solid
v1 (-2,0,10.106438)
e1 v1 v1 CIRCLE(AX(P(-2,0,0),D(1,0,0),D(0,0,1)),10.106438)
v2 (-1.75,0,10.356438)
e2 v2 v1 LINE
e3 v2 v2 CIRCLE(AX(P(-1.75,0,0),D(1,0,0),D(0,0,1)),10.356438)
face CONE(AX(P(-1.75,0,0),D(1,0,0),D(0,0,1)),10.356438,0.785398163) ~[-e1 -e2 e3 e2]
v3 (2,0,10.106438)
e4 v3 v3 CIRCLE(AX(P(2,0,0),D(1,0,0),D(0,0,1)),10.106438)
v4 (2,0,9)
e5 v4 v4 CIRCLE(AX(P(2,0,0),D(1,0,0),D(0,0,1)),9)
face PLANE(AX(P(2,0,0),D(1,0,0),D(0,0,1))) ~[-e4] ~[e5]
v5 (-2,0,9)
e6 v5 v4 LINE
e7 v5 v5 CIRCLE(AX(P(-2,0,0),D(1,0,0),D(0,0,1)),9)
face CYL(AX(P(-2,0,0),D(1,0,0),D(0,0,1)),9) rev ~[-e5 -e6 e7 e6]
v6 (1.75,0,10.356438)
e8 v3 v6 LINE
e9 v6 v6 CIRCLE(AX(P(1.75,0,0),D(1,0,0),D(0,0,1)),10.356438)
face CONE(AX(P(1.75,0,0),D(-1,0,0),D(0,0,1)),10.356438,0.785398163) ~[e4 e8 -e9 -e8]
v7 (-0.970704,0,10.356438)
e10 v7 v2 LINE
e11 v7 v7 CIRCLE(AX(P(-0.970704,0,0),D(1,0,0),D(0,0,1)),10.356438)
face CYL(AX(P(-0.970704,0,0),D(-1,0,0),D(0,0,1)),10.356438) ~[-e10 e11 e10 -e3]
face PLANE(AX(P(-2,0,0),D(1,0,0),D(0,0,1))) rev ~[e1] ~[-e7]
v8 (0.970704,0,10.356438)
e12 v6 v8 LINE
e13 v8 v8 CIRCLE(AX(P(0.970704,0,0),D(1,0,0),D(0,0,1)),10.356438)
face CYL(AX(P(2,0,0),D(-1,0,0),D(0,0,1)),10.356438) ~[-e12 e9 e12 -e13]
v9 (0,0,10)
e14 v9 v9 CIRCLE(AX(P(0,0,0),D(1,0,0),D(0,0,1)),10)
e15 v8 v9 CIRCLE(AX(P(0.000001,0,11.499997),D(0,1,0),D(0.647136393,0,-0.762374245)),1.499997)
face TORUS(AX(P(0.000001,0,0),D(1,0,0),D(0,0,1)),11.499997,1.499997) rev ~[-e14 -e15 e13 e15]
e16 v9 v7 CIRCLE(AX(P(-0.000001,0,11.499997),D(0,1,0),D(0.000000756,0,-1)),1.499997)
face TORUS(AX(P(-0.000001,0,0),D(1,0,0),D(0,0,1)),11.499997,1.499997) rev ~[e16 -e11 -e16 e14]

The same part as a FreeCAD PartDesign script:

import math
import FreeCAD as App
import Part
import Sketcher

V = App.Vector
Q = App.Units.Quantity


def edges_at(feature, points):
    """Names of the edges that pass closest to the given points."""
    edges = feature.Shape.Edges
    near = lambda p: min(range(len(edges)), key=lambda i: edges[i].distToShape(Part.Vertex(*p))[0])
    return sorted({f"Edge{near(p) + 1}" for p in points})

doc = App.newDocument("Part")
body = doc.addObject("PartDesign::Body", "Body")

sketch1 = body.newObject("Sketcher::SketchObject", "Sketch")
sketch1.AttachmentSupport = (doc.getObject("XZ_Plane"), [""])
sketch1.MapMode = "FlatFace"
sketch1.addGeometry(Part.ArcOfCircle(Part.Circle(V(0, 11.5, 0), V(0, 0, 1), 1.5), math.radians(-90), math.radians(-50)), False)
sketch1.addGeometry(Part.ArcOfCircle(Part.Circle(V(0, 11.5, 0), V(0, 0, 1), 1.5), math.radians(-130), math.radians(-90)), False)
sketch1.addGeometry(Part.LineSegment(V(-1, 10.4, 0), V(-2, 10.4, 0)), False)
sketch1.addGeometry(Part.LineSegment(V(-2, 10.4, 0), V(-2, 9, 0)), False)
sketch1.addGeometry(Part.LineSegment(V(-2, 9, 0), V(2, 9, 0)), False)
sketch1.addGeometry(Part.LineSegment(V(2, 9, 0), V(2, 10.4, 0)), False)
sketch1.addGeometry(Part.LineSegment(V(2, 10.4, 0), V(1, 10.4, 0)), False)
sketch1.addConstraint(Sketcher.Constraint("Tangent", 0, 1, 1, 2))
sketch1.addConstraint(Sketcher.Constraint("Coincident", 1, 1, 2, 1))
sketch1.addConstraint(Sketcher.Constraint("Coincident", 2, 2, 3, 1))
sketch1.addConstraint(Sketcher.Constraint("Coincident", 3, 2, 4, 1))
sketch1.addConstraint(Sketcher.Constraint("Coincident", 4, 2, 5, 1))
sketch1.addConstraint(Sketcher.Constraint("Coincident", 5, 2, 6, 1))
sketch1.addConstraint(Sketcher.Constraint("Coincident", 6, 2, 0, 2))
sketch1.addConstraint(Sketcher.Constraint("Horizontal", 2))
sketch1.addConstraint(Sketcher.Constraint("Vertical", 3))
sketch1.addConstraint(Sketcher.Constraint("Horizontal", 4))
sketch1.addConstraint(Sketcher.Constraint("Vertical", 5))
sketch1.addConstraint(Sketcher.Constraint("Horizontal", 6))
sketch1.addConstraint(Sketcher.Constraint("Equal", 0, 1))
sketch1.addConstraint(Sketcher.Constraint("Symmetric", 2, 2, 5, 2, -2))
sketch1.addConstraint(Sketcher.Constraint("PointOnObject", 0, 3, -2))
sketch1.addConstraint(Sketcher.Constraint("PointOnObject", 0, 1, -2))
sketch1.addConstraint(Sketcher.Constraint("DistanceX", 4, 1, 4, 2, Q("4 mm")))
sketch1.addConstraint(Sketcher.Constraint("DistanceY", -1, 1, 0, 1, Q("10 mm")))
sketch1.addConstraint(Sketcher.Constraint("DistanceY", -1, 1, 3, 2, Q("9 mm")))
sketch1.addConstraint(Sketcher.Constraint("Radius", 0, Q("1.499997 mm")))
sketch1.addConstraint(Sketcher.Constraint("DistanceY", 3, 2, 3, 1, Q("1.356438 mm")))
revolution = body.newObject("PartDesign::Revolution", "Revolution")
revolution.Profile = sketch1
revolution.ReferenceAxis = (sketch1, ["H_Axis"])
revolution.Angle = 360
doc.recompute()

chamfer = body.newObject("PartDesign::Chamfer", "Chamfer")
chamfer.Base = (revolution, edges_at(revolution, [(2, 0, -10.356), (-2, 0, -10.356)]))
chamfer.Size = 0.25

doc.recompute()
